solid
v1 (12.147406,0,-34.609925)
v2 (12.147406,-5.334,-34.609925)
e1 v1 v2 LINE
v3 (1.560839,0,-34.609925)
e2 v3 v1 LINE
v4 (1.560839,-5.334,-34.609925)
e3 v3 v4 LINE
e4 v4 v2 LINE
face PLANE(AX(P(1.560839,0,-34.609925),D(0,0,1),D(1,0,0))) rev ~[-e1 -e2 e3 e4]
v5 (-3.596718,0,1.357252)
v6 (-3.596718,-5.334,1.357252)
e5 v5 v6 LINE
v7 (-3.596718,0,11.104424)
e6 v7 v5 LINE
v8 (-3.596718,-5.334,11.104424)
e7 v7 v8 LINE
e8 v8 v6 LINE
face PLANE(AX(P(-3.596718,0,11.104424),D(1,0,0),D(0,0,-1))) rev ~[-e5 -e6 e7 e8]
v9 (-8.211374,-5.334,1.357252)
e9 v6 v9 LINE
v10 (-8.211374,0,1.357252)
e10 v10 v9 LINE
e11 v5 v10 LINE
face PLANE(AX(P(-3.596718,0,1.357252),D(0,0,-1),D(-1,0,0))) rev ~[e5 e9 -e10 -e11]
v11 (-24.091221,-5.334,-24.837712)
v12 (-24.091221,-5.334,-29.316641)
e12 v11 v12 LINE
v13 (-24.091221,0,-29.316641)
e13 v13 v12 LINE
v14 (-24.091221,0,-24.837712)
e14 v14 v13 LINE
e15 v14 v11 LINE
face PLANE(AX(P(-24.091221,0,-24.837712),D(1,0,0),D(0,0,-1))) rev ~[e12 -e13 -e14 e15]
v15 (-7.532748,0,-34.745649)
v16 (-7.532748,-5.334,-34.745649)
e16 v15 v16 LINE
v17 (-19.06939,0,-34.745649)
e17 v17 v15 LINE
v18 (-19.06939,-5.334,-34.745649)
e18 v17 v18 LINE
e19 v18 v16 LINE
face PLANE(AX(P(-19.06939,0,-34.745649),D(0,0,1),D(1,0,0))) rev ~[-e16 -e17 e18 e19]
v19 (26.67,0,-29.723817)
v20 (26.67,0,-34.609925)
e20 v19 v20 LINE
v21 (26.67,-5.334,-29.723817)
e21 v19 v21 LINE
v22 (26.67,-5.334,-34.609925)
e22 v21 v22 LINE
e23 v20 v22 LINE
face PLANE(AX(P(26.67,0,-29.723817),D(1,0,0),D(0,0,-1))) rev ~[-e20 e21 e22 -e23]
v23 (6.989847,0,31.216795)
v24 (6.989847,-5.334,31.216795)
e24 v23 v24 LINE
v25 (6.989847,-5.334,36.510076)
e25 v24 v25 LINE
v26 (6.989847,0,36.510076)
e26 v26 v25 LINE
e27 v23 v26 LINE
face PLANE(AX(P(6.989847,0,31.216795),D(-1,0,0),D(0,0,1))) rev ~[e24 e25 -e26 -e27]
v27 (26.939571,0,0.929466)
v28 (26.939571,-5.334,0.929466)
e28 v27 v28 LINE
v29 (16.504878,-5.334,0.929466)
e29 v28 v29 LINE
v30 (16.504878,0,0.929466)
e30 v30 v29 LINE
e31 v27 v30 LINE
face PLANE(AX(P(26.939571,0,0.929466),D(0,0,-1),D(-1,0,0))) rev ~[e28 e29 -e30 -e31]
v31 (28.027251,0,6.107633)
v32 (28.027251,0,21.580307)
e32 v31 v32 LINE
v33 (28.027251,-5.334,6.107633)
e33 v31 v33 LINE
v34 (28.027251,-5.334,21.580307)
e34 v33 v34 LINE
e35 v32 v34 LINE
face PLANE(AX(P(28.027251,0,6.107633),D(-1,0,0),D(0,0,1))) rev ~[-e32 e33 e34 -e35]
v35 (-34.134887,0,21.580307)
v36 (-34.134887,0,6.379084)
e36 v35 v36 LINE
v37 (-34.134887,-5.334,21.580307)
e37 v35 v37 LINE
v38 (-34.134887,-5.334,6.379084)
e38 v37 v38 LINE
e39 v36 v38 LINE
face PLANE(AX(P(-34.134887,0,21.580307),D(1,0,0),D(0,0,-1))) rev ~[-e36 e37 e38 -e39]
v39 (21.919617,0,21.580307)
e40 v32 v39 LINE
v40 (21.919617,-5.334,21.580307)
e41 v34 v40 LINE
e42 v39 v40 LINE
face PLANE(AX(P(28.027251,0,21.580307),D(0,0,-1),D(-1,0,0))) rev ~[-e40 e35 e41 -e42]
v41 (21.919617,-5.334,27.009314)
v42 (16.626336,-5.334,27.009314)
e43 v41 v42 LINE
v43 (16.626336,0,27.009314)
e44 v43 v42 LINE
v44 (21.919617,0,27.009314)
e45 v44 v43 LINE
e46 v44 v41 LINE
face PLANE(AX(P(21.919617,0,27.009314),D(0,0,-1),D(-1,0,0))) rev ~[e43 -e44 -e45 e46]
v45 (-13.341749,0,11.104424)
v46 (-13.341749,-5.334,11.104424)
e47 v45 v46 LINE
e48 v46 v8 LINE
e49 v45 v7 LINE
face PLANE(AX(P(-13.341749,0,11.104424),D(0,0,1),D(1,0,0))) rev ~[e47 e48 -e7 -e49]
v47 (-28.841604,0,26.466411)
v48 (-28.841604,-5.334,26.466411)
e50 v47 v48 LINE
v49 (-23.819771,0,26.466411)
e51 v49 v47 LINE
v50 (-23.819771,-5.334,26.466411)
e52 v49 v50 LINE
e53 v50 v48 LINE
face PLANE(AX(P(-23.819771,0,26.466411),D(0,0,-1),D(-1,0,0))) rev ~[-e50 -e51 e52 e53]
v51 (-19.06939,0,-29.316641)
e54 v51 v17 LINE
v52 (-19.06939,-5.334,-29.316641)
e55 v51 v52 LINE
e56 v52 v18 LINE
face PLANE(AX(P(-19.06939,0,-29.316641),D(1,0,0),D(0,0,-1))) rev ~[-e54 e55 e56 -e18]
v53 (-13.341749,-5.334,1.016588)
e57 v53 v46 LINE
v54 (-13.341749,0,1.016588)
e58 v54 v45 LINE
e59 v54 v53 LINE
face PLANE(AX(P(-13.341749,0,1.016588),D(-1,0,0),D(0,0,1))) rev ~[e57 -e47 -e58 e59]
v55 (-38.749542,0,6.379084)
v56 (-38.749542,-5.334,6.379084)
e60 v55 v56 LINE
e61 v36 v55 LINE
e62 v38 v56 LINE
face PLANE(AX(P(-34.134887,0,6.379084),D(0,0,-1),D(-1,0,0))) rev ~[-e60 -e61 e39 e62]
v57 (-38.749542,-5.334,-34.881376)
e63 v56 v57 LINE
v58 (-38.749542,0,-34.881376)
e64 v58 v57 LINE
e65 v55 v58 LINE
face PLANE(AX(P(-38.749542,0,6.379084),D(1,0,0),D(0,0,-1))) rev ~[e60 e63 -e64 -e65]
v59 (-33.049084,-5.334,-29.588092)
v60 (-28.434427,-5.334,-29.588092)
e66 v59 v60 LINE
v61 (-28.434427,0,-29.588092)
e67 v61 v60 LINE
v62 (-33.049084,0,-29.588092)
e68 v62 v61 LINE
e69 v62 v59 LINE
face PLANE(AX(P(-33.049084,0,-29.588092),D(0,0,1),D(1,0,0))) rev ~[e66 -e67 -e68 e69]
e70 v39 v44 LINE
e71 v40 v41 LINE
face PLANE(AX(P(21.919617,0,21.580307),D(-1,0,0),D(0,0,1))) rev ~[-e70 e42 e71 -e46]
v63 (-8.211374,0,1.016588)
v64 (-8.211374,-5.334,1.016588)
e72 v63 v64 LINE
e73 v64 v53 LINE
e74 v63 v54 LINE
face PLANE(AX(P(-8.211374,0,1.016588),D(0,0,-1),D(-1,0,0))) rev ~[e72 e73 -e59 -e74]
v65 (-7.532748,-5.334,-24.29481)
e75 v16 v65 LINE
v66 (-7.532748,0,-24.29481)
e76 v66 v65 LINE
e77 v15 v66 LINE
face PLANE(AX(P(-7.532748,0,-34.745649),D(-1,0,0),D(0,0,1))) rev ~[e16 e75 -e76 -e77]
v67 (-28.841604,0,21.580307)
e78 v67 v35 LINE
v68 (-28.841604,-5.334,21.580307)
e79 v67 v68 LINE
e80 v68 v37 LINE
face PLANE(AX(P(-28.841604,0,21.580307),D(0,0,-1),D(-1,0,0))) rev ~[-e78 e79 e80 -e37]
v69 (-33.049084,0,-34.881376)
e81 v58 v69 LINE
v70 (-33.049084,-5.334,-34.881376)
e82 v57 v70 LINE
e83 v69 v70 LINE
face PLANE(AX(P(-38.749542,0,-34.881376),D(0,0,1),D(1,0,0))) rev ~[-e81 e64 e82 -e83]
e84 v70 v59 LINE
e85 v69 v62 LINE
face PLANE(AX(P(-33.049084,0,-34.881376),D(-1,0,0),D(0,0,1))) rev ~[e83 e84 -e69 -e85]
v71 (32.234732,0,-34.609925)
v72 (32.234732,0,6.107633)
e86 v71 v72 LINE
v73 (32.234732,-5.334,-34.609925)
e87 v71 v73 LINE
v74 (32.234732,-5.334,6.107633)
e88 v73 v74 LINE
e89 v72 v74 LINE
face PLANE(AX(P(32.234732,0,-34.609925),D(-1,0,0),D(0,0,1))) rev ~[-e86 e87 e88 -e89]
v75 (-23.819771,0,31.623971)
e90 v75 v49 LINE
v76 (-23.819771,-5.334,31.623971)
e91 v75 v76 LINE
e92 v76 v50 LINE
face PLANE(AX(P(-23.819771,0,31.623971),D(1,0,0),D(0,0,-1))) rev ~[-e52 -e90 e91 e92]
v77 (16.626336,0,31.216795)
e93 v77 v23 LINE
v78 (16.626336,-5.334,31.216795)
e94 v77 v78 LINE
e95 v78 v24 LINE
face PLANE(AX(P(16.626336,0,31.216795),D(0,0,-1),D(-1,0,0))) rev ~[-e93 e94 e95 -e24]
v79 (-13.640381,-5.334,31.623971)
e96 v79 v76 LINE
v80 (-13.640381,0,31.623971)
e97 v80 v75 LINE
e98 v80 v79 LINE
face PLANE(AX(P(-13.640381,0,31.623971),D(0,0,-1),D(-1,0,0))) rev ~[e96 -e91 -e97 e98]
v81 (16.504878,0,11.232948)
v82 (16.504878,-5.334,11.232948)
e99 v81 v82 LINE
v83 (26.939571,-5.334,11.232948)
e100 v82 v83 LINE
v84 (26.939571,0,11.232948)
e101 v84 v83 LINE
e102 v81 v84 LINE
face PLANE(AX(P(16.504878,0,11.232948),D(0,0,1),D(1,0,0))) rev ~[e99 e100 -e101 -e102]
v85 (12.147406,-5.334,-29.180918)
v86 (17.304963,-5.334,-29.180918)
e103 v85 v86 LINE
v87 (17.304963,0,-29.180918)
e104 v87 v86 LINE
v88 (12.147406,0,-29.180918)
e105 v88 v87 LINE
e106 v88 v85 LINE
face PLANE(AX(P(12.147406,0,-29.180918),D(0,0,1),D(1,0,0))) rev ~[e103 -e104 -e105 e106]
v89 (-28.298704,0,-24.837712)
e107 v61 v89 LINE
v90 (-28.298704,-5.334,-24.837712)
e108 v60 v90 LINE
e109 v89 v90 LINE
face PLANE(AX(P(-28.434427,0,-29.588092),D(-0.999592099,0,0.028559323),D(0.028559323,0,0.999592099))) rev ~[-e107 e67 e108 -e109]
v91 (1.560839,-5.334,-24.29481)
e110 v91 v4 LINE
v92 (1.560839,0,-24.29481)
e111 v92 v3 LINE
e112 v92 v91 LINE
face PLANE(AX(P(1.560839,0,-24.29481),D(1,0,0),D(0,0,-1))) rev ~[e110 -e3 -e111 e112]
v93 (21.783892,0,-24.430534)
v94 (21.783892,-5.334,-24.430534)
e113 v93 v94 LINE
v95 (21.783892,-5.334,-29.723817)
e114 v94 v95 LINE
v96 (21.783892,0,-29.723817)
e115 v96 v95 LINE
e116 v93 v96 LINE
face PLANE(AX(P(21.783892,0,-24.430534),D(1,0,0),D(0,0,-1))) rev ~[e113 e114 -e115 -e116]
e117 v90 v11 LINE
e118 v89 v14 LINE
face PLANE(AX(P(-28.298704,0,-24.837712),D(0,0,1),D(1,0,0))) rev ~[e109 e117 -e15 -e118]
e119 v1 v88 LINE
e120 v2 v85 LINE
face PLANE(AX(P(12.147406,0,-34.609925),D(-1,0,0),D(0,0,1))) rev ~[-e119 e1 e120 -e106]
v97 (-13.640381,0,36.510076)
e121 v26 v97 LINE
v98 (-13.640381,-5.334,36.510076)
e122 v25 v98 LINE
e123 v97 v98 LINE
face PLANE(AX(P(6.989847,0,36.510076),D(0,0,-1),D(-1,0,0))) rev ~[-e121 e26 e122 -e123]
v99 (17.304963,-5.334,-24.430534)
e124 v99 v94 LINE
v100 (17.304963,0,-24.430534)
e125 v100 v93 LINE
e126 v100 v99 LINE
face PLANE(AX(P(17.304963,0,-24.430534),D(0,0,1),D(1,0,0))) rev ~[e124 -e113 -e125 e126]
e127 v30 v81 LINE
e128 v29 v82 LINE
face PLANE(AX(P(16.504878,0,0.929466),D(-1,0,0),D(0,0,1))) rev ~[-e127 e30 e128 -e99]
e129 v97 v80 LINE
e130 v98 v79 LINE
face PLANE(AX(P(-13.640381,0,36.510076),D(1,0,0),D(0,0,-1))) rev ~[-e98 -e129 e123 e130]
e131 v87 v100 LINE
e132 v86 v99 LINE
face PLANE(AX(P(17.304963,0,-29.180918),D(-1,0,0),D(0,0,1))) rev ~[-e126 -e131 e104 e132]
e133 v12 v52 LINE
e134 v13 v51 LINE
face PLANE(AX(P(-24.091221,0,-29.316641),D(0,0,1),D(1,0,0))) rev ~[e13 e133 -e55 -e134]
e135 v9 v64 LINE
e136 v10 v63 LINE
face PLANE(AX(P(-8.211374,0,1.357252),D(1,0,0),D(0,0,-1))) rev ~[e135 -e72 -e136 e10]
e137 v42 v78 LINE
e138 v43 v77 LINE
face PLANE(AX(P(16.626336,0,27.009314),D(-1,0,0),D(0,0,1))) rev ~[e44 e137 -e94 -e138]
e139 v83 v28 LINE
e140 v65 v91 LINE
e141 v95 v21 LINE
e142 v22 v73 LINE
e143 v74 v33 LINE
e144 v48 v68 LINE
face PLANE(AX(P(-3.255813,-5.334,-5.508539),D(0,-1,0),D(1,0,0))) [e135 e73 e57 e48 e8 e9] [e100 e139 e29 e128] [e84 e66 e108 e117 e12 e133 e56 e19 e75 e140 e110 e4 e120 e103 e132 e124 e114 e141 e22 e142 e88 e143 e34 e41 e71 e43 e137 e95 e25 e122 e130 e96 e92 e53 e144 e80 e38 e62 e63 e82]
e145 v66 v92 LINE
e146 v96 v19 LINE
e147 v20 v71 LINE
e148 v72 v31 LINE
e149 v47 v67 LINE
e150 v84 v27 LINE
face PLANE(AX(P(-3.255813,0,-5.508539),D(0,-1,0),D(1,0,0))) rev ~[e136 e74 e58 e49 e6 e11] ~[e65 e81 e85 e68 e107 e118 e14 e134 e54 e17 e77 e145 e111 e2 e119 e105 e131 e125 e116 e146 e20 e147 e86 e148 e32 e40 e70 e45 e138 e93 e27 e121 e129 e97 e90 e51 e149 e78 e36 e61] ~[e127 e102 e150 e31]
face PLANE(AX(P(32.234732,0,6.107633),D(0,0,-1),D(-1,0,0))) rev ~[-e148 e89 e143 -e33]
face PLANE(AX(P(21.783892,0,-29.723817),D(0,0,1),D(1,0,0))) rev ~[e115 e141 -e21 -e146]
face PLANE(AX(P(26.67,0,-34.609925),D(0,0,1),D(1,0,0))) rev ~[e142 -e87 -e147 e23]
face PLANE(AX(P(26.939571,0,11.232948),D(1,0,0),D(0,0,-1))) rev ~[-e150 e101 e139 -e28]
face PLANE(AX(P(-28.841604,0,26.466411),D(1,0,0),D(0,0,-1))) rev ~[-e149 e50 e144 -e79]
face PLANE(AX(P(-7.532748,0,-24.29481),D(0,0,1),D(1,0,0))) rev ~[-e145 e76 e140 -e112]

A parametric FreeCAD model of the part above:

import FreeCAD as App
import Part
import Sketcher
Q = App.Units.Quantity


def add_polygon(sketch, points):
    """Adds a closed chain of lines whose ends are joined by coincident constraints."""
    first, n = sketch.GeometryCount, len(points)
    for a, b in zip(points, points[1:] + points[:1]):
        sketch.addGeometry(Part.LineSegment(App.Vector(*a, 0), App.Vector(*b, 0)), False)
    for i in range(n):
        sketch.addConstraint(Sketcher.Constraint("Coincident", first + i, 2, first + (i + 1) % n, 1))

doc = App.newDocument("Part")
body = doc.addObject("PartDesign::Body", "Body")

# Sketch on XZ plane
sketch1 = body.newObject("Sketcher::SketchObject", "Sketch")
sketch1.AttachmentSupport = (doc.getObject("XZ_Plane"), [""])
sketch1.MapMode = "FlatFace"
add_polygon(sketch1, [(-28.43, -29.59), (-28.3, -24.84), (-24.09, -24.84), (-24.09, -29.32), (-19.07, -29.32), (-19.07, -34.75), (-7.53, -34.75), (-7.53, -24.29), (1.56, -24.29), (1.56, -34.61), (12.15, -34.61), (12.15, -29.18), (17.3, -29.18), (17.3, -24.43), (21.78, -24.43), (21.78, -29.72), (26.67, -29.72), (26.67, -34.61), (32.23, -34.61), (32.23, 6.11), (28.03, 6.11), (28.03, 21.58), (21.92, 21.58), (21.92, 27.01), (16.63, 27.01), (16.63, 31.22), (6.99, 31.22), (6.99, 36.51), (-13.64, 36.51), (-13.64, 31.62), (-23.82, 31.62), (-23.82, 26.47), (-28.84, 26.47), (-28.84, 21.58), (-34.13, 21.58), (-34.13, 6.38), (-38.75, 6.38), (-38.75, -34.88), (-33.05, -34.88), (-33.05, -29.59)])  # lines 0-39
add_polygon(sketch1, [(26.94, 11.23), (26.94, 0.93), (16.5, 0.93), (16.5, 11.23)])  # lines 40-43
add_polygon(sketch1, [(-3.6, 11.1), (-3.6, 1.36), (-8.21, 1.36), (-8.21, 1.02), (-13.34, 1.02), (-13.34, 11.1)])  # lines 44-49
sketch1.addConstraint(Sketcher.Constraint("Horizontal", 1))
sketch1.addConstraint(Sketcher.Constraint("Vertical", 2))
sketch1.addConstraint(Sketcher.Constraint("Horizontal", 3))
sketch1.addConstraint(Sketcher.Constraint("Vertical", 4))
sketch1.addConstraint(Sketcher.Constraint("Horizontal", 5))
sketch1.addConstraint(Sketcher.Constraint("Vertical", 6))
sketch1.addConstraint(Sketcher.Constraint("Horizontal", 7))
sketch1.addConstraint(Sketcher.Constraint("Vertical", 8))
sketch1.addConstraint(Sketcher.Constraint("Horizontal", 9))
sketch1.addConstraint(Sketcher.Constraint("Vertical", 10))
sketch1.addConstraint(Sketcher.Constraint("Horizontal", 11))
sketch1.addConstraint(Sketcher.Constraint("Vertical", 12))
sketch1.addConstraint(Sketcher.Constraint("Horizontal", 13))
sketch1.addConstraint(Sketcher.Constraint("Vertical", 14))
sketch1.addConstraint(Sketcher.Constraint("Horizontal", 15))
sketch1.addConstraint(Sketcher.Constraint("Vertical", 16))
sketch1.addConstraint(Sketcher.Constraint("Horizontal", 17))
sketch1.addConstraint(Sketcher.Constraint("Vertical", 18))
sketch1.addConstraint(Sketcher.Constraint("Horizontal", 19))
sketch1.addConstraint(Sketcher.Constraint("Vertical", 20))
sketch1.addConstraint(Sketcher.Constraint("Horizontal", 21))
sketch1.addConstraint(Sketcher.Constraint("Vertical", 22))
sketch1.addConstraint(Sketcher.Constraint("Horizontal", 23))
sketch1.addConstraint(Sketcher.Constraint("Vertical", 24))
sketch1.addConstraint(Sketcher.Constraint("Horizontal", 25))
sketch1.addConstraint(Sketcher.Constraint("Vertical", 26))
sketch1.addConstraint(Sketcher.Constraint("Horizontal", 27))
sketch1.addConstraint(Sketcher.Constraint("Vertical", 28))
sketch1.addConstraint(Sketcher.Constraint("Horizontal", 29))
sketch1.addConstraint(Sketcher.Constraint("Vertical", 30))
sketch1.addConstraint(Sketcher.Constraint("Horizontal", 31))
sketch1.addConstraint(Sketcher.Constraint("Vertical", 32))
sketch1.addConstraint(Sketcher.Constraint("Horizontal", 33))
sketch1.addConstraint(Sketcher.Constraint("Vertical", 34))
sketch1.addConstraint(Sketcher.Constraint("Horizontal", 35))
sketch1.addConstraint(Sketcher.Constraint("Vertical", 36))
sketch1.addConstraint(Sketcher.Constraint("Horizontal", 37))
sketch1.addConstraint(Sketcher.Constraint("Vertical", 38))
sketch1.addConstraint(Sketcher.Constraint("Horizontal", 39))
sketch1.addConstraint(Sketcher.Constraint("Vertical", 40))
sketch1.addConstraint(Sketcher.Constraint("Horizontal", 41))
sketch1.addConstraint(Sketcher.Constraint("Vertical", 42))
sketch1.addConstraint(Sketcher.Constraint("Horizontal", 43))
sketch1.addConstraint(Sketcher.Constraint("Vertical", 44))
sketch1.addConstraint(Sketcher.Constraint("Horizontal", 45))
sketch1.addConstraint(Sketcher.Constraint("Vertical", 46))
sketch1.addConstraint(Sketcher.Constraint("Horizontal", 47))
sketch1.addConstraint(Sketcher.Constraint("Vertical", 48))
sketch1.addConstraint(Sketcher.Constraint("Horizontal", 49))
sketch1.addConstraint(Sketcher.Constraint("Horizontal", 9, 2, 16, 2))
sketch1.addConstraint(Sketcher.Constraint("Horizontal", 21, 2, 32, 2))
sketch1.addConstraint(Sketcher.Constraint("Equal", 1, 19))
sketch1.addConstraint(Sketcher.Constraint("Equal", 3, 31))
sketch1.addConstraint(Sketcher.Constraint("Equal", 23, 33))
sketch1.addConstraint(Sketcher.Constraint("Equal", 39, 45))
sketch1.addConstraint(Sketcher.Constraint("Equal", 13, 2))
sketch1.addConstraint(Sketcher.Constraint("Equal", 4, 10))
sketch1.addConstraint(Sketcher.Constraint("Equal", 33, 14))
sketch1.addConstraint(Sketcher.Constraint("Equal", 15, 16))
sketch1.addConstraint(Sketcher.Constraint("Equal", 10, 22))
sketch1.addConstraint(Sketcher.Constraint("Equal", 19, 24))
sketch1.addConstraint(Sketcher.Constraint("Equal", 23, 26))
sketch1.addConstraint(Sketcher.Constraint("Equal", 28, 32))
sketch1.addConstraint(Sketcher.Constraint("Equal", 14, 38))
sketch1.addConstraint(Sketcher.Constraint("DistanceX", 27, 2, 22, 2, Q("1.3999999 in")))
sketch1.addConstraint(Sketcher.Constraint("DistanceX", -1, 1, 15, 2, Q("1.05 in")))
sketch1.addConstraint(Sketcher.Constraint("DistanceX", 3, 1, 3, 2, Q("5.021831 mm")))
sketch1.addConstraint(Sketcher.Constraint("DistanceX", 5, 1, 5, 2, Q("11.536642 mm")))
sketch1.addConstraint(Sketcher.Constraint("DistanceX", 13, 1, 13, 2, Q("4.478929 mm")))
sketch1.addConstraint(Sketcher.Constraint("DistanceX", 17, 1, 17, 2, Q("5.564732 mm")))
sketch1.addConstraint(Sketcher.Constraint("DistanceX", 19, 2, 19, 1, Q("4.207481 mm")))
sketch1.addConstraint(Sketcher.Constraint("DistanceX", 23, 2, 23, 1, Q("5.293281 mm")))
sketch1.addConstraint(Sketcher.Constraint("DistanceX", 25, 2, 25, 1, Q("9.636489 mm")))
sketch1.addConstraint(Sketcher.Constraint("DistanceX", 29, 2, 29, 1, Q("10.17939 mm")))
sketch1.addConstraint(Sketcher.Constraint("DistanceX", 49, 1, 49, 2, Q("9.745031 mm")))
sketch1.addConstraint(Sketcher.Constraint("DistanceY", 6, 1, 6, 2, Q("10.450839 mm")))
sketch1.addConstraint(Sketcher.Constraint("DistanceY", 30, 2, 30, 1, Q("5.15756 mm")))
sketch1.addConstraint(Sketcher.Constraint("DistanceY", 36, 2, 36, 1, Q("41.26046 mm")))
sketch1.addConstraint(Sketcher.Constraint("DistanceY", 44, 2, 44, 1, Q("9.747172 mm")))
sketch1.addConstraint(Sketcher.Constraint("DistanceY", 14, 2, 11, 2, Q("0.542899 mm")))
sketch1.addConstraint(Sketcher.Constraint("DistanceY", 13, 2, 40, 2, Q("25.36 mm")))
sketch1.addConstraint(Sketcher.Constraint("Distance", 0, Q("4.752318 mm")))
sketch1.addConstraint(Sketcher.Constraint("DistanceX", 7, 1, 7, 2, Q("9.093587 mm")))
sketch1.addConstraint(Sketcher.Constraint("DistanceX", 9, 1, 9, 2, Q("10.586567 mm")))
sketch1.addConstraint(Sketcher.Constraint("DistanceX", 11, 1, 11, 2, Q("5.157557 mm")))
sketch1.addConstraint(Sketcher.Constraint("DistanceX", 15, 1, 15, 2, Q("4.886108 mm")))
sketch1.addConstraint(Sketcher.Constraint("DistanceX", 21, 2, 21, 1, Q("6.107634 mm")))
sketch1.addConstraint(Sketcher.Constraint("DistanceX", 35, 2, 35, 1, Q("4.614655 mm")))
sketch1.addConstraint(Sketcher.Constraint("DistanceX", 37, 1, 37, 2, Q("5.700458 mm")))
sketch1.addConstraint(Sketcher.Constraint("DistanceX", 39, 1, 39, 2, Q("4.614657 mm")))
sketch1.addConstraint(Sketcher.Constraint("DistanceX", 41, 2, 41, 1, Q("10.434693 mm")))
sketch1.addConstraint(Sketcher.Constraint("DistanceY", 8, 2, 8, 1, Q("10.315115 mm")))
sketch1.addConstraint(Sketcher.Constraint("DistanceY", 18, 1, 18, 2, Q("40.717558 mm")))
sketch1.addConstraint(Sketcher.Constraint("DistanceY", 20, 1, 20, 2, Q("15.472674 mm")))
sketch1.addConstraint(Sketcher.Constraint("DistanceY", 40, 2, 40, 1, Q("10.303482 mm")))
sketch1.addConstraint(Sketcher.Constraint("DistanceY", 46, 2, 46, 1, Q("0.340664 mm")))
sketch1.addConstraint(Sketcher.Constraint("DistanceY", 0, 2, -1, 1, Q("24.837712 mm")))
sketch1.addConstraint(Sketcher.Constraint("DistanceX", -1, 1, 40, 2, Q("26.939571 mm")))
sketch1.addConstraint(Sketcher.Constraint("DistanceX", 44, 2, -1, 1, Q("3.596718 mm")))
sketch1.addConstraint(Sketcher.Constraint("DistanceY", -1, 1, 44, 2, Q("1.357252 mm")))
pad1 = body.newObject("PartDesign::Pad", "Pad")
pad1.Profile = sketch1
pad1.Length = Q("0.21 in")

doc.recompute()
